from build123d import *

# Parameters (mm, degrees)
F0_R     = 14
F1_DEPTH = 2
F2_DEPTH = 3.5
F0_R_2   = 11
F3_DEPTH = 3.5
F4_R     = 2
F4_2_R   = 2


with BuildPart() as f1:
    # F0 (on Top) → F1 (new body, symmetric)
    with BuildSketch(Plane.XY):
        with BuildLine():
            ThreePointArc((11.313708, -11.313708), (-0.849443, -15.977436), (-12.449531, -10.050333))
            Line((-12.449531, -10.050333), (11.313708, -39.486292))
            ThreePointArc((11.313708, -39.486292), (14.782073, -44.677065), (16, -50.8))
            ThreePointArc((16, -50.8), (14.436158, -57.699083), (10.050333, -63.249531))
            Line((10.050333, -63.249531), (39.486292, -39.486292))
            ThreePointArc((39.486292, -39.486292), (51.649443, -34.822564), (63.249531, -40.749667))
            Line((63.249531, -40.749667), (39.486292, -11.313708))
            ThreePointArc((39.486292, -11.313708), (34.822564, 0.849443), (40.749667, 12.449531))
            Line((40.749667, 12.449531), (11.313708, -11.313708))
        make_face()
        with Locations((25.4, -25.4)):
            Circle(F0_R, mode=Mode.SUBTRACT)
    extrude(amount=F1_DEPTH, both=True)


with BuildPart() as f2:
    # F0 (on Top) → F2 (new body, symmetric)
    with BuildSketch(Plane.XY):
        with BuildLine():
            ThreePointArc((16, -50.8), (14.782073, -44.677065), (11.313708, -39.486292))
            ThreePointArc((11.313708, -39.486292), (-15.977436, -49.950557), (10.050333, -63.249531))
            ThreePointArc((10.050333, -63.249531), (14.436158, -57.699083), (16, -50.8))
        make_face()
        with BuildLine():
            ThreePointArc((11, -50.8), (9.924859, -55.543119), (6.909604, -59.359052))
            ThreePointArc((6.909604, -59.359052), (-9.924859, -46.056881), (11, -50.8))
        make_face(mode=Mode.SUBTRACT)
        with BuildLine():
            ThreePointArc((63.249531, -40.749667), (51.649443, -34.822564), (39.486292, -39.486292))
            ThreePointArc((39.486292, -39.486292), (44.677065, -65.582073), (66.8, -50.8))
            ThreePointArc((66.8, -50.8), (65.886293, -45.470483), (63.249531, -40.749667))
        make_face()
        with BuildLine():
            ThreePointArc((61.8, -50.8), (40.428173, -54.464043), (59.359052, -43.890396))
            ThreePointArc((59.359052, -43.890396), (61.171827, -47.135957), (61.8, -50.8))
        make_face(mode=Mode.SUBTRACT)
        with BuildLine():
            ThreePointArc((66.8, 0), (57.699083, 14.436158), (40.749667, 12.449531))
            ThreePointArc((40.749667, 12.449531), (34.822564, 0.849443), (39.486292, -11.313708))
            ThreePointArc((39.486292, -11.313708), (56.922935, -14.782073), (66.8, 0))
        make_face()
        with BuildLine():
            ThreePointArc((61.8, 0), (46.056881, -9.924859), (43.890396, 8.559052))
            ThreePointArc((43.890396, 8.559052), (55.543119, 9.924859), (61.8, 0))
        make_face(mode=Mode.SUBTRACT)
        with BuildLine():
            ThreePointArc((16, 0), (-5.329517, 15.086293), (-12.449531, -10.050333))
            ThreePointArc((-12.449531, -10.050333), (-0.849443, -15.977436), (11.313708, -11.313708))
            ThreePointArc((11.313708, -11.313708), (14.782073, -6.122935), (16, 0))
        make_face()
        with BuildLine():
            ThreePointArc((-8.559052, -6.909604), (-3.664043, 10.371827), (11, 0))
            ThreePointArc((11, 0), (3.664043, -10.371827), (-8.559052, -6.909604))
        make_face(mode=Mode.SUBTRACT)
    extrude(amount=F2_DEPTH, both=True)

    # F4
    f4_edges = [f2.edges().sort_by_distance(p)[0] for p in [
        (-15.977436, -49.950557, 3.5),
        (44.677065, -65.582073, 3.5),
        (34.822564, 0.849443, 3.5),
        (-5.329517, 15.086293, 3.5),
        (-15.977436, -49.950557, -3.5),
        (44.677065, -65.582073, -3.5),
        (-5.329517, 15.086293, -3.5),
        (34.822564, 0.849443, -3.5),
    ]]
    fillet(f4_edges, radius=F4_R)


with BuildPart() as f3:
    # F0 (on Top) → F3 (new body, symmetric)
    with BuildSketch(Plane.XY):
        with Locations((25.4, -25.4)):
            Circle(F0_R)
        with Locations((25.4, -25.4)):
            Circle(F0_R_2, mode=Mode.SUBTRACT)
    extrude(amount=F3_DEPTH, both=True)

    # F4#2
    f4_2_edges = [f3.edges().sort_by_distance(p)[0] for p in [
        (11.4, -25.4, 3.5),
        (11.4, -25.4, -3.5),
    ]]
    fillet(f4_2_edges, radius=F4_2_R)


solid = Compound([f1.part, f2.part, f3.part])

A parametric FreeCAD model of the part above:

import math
import FreeCAD as App
import Part
import Sketcher
from FreeCAD import Vector


def edges_at(feature, points):
    """Names of the edges that pass closest to the given points."""
    edges = feature.Shape.Edges
    near = lambda p: min(range(len(edges)), key=lambda i: edges[i].distToShape(Part.Vertex(*p))[0])
    return sorted({f"Edge{near(p) + 1}" for p in points})

doc = App.newDocument("Part")
params = doc.addObject("Spreadsheet::Sheet", "Params")
for row, (alias, value) in enumerate([
    ("sketch1_diameter", "28 mm"),
    ("sketch1_radius", "15.999999 mm"),
    ("pad1_length", "4 mm"),
    ("sketch2_radius", "16 mm"),
    ("sketch2_radius2", "11 mm"),
    ("pad2_length", "7 mm"),
    ("fillet_radius", "2 mm"),
    ("sketch3_diameter", "28 mm"),
    ("sketch3_diameter2", "22 mm"),
    ("pad3_length", "7 mm"),
    ("fillet2_radius", "2 mm"),
], start=1):
    params.set(f"A{row}", alias)
    params.set(f"B{row}", "=" + value)
    params.setAlias(f"B{row}", alias)

body = doc.addObject("PartDesign::Body", "Body")

# Sketch on XY plane
sketch1 = body.newObject("Sketcher::SketchObject", "Sketch")
sketch1.AttachmentSupport = (doc.getObject("XY_Plane"), [""])
sketch1.MapMode = "FlatFace"
sketch1.addGeometry([
    Part.ArcOfCircle(Part.Circle(Vector(0, 0, 0), Vector(0, 0, 1), 16), math.radians(-141), math.radians(-45)),  # 0
    Part.LineSegment(Vector(-12, -10, 0), Vector(11, -39, 0)),  # 1
    Part.ArcOfCircle(Part.Circle(Vector(0, -51, 0), Vector(0, 0, 1), 16), math.radians(0), math.radians(45)),  # 2
    Part.ArcOfCircle(Part.Circle(Vector(0, -51, 0), Vector(0, 0, 1), 16), math.radians(-51), math.radians(0)),  # 3
    Part.LineSegment(Vector(10, -63, 0), Vector(39, -39, 0)),  # 4
    Part.ArcOfCircle(Part.Circle(Vector(51, -51, 0), Vector(0, 0, 1), 16), math.radians(39), math.radians(135)),  # 5
    Part.LineSegment(Vector(63, -41, 0), Vector(39, -11, 0)),  # 6
    Part.ArcOfCircle(Part.Circle(Vector(51, 0, 0), Vector(0, 0, 1), 16), math.radians(129), math.radians(225)),  # 7
    Part.LineSegment(Vector(41, 12, 0), Vector(11, -11, 0)),  # 8
    Part.Circle(Vector(25, -25, 0), Vector(0, 0, 1), 14),  # 9
], False)
sketch1.addConstraint([
    Sketcher.Constraint("Tangent", 0, 1, 1, 1),
    Sketcher.Constraint("Coincident", 1, 2, 2, 2),
    Sketcher.Constraint("Tangent", 2, 1, 3, 2),
    Sketcher.Constraint("Tangent", 3, 1, 4, 1),
    Sketcher.Constraint("Coincident", 4, 2, 5, 2),
    Sketcher.Constraint("Tangent", 5, 1, 6, 1),
    Sketcher.Constraint("Coincident", 6, 2, 7, 2),
    Sketcher.Constraint("Tangent", 7, 1, 8, 1),
    Sketcher.Constraint("Coincident", 8, 2, 0, 2),
    Sketcher.Constraint("Coincident", 0, 3, -1, 1),
    Sketcher.Constraint("Equal", 0, 5),
    Sketcher.Constraint("Equal", 5, 7),
    Sketcher.Constraint("PointOnObject", 3, 3, -2),
    Sketcher.Constraint("PointOnObject", 7, 3, -1),
    Sketcher.Constraint("Perpendicular", 1, 4),
    Sketcher.Constraint("Perpendicular", 4, 6),
    Sketcher.Constraint("Perpendicular", 6, 8),
    Sketcher.Constraint("Horizontal", 3, 3, 5, 3),
    Sketcher.Constraint("Horizontal", 5, 3, 2, 1),
    Sketcher.Constraint("Horizontal", 1, 2, 4, 2),
    Sketcher.Constraint("Horizontal", 6, 2, 8, 2),
    Sketcher.Constraint("Vertical", 4, 2, 6, 2),
    Sketcher.Constraint("Vertical", 1, 2, 8, 2),
    Sketcher.Constraint("Equal", 1, 4),
    Sketcher.Constraint("Diameter", 9, 28.0),
    Sketcher.Constraint("Radius", 0, 15.999999),
    Sketcher.Constraint("DistanceY", 3, 3, -1, 1, 50.8),
    Sketcher.Constraint("DistanceX", -1, 1, 9, 3, 25.4),
    Sketcher.Constraint("DistanceY", 9, 3, -1, 1, 25.4),
])
sketch1.setExpression("Constraints[24]", "Params.sketch1_diameter")
sketch1.setExpression("Constraints[25]", "Params.sketch1_radius")
pad1 = body.newObject("PartDesign::Pad", "Pad")
pad1.Profile = sketch1
pad1.setExpression("Length", "Params.pad1_length")
pad1.Midplane = True
body2 = doc.addObject("PartDesign::Body", "Body001")
body2.AllowCompound = True

# Sketch on XY plane
sketch2 = body2.newObject("Sketcher::SketchObject", "Sketch001")
sketch2.AttachmentSupport = (doc.getObject("XY_Plane001"), [""])
sketch2.MapMode = "FlatFace"
sketch2.addGeometry([
    Part.ArcOfCircle(Part.Circle(Vector(0, -51, 0), Vector(0, 0, 1), 16), math.radians(0), math.radians(45)),  # 0
    Part.ArcOfCircle(Part.Circle(Vector(0, -51, 0), Vector(0, 0, 1), 16), math.radians(45), math.radians(309)),  # 1
    Part.ArcOfCircle(Part.Circle(Vector(0, -51, 0), Vector(0, 0, 1), 16), math.radians(-51), math.radians(0)),  # 2
    Part.ArcOfCircle(Part.Circle(Vector(0, -51, 0), Vector(0, 0, 1), 11), math.radians(0), math.radians(309)),  # 3
    Part.ArcOfCircle(Part.Circle(Vector(0, -51, 0), Vector(0, 0, 1), 11), math.radians(-51), math.radians(0)),  # 4
    Part.ArcOfCircle(Part.Circle(Vector(51, -51, 0), Vector(0, 0, 1), 16), math.radians(39), math.radians(135)),  # 5
    Part.ArcOfCircle(Part.Circle(Vector(51, -51, 0), Vector(0, 0, 1), 16), math.radians(135), math.radians(360)),  # 6
    Part.ArcOfCircle(Part.Circle(Vector(51, -51, 0), Vector(0, 0, 1), 16), math.radians(0), math.radians(39)),  # 7
    Part.ArcOfCircle(Part.Circle(Vector(51, -51, 0), Vector(0, 0, 1), 11), math.radians(0), math.radians(39)),  # 8
    Part.ArcOfCircle(Part.Circle(Vector(51, -51, 0), Vector(0, 0, 1), 11), math.radians(39), math.radians(360)),  # 9
    Part.ArcOfCircle(Part.Circle(Vector(51, 0, 0), Vector(0, 0, 1), 16), math.radians(0), math.radians(129)),  # 10
    Part.ArcOfCircle(Part.Circle(Vector(51, 0, 0), Vector(0, 0, 1), 16), math.radians(129), math.radians(225)),  # 11
    Part.ArcOfCircle(Part.Circle(Vector(51, 0, 0), Vector(0, 0, 1), 16), math.radians(-135), math.radians(0)),  # 12
    Part.ArcOfCircle(Part.Circle(Vector(51, 0, 0), Vector(0, 0, 1), 11), math.radians(0), math.radians(129)),  # 13
    Part.ArcOfCircle(Part.Circle(Vector(51, 0, 0), Vector(0, 0, 1), 11), math.radians(129), math.radians(360)),  # 14
    Part.ArcOfCircle(Part.Circle(Vector(0, 0, 0), Vector(0, 0, 1), 16), math.radians(0), math.radians(219)),  # 15
    Part.ArcOfCircle(Part.Circle(Vector(0, 0, 0), Vector(0, 0, 1), 16), math.radians(-141), math.radians(-45)),  # 16
    Part.ArcOfCircle(Part.Circle(Vector(0, 0, 0), Vector(0, 0, 1), 16), math.radians(-45), math.radians(0)),  # 17
    Part.ArcOfCircle(Part.Circle(Vector(0, 0, 0), Vector(0, 0, 1), 11), math.radians(-141), math.radians(0)),  # 18
    Part.ArcOfCircle(Part.Circle(Vector(0, 0, 0), Vector(0, 0, 1), 11), math.radians(0), math.radians(219)),  # 19
], False)
sketch2.addConstraint([
    Sketcher.Constraint("Tangent", 0, 2, 1, 1),
    Sketcher.Constraint("Tangent", 1, 2, 2, 1),
    Sketcher.Constraint("Tangent", 2, 2, 0, 1),
    Sketcher.Constraint("Tangent", 3, 1, 4, 2),
    Sketcher.Constraint("Coincident", 4, 1, 3, 2),
    Sketcher.Constraint("Tangent", 5, 2, 6, 1),
    Sketcher.Constraint("Tangent", 6, 2, 7, 1),
    Sketcher.Constraint("Tangent", 7, 2, 5, 1),
    Sketcher.Constraint("Tangent", 8, 1, 9, 2),
    Sketcher.Constraint("Coincident", 9, 1, 8, 2),
    Sketcher.Constraint("Tangent", 10, 2, 11, 1),
    Sketcher.Constraint("Tangent", 11, 2, 12, 1),
    Sketcher.Constraint("Tangent", 12, 2, 10, 1),
    Sketcher.Constraint("Tangent", 13, 1, 14, 2),
    Sketcher.Constraint("Coincident", 14, 1, 13, 2),
    Sketcher.Constraint("Tangent", 15, 2, 16, 1),
    Sketcher.Constraint("Tangent", 16, 2, 17, 1),
    Sketcher.Constraint("Tangent", 17, 2, 15, 1),
    Sketcher.Constraint("Tangent", 18, 1, 19, 2),
    Sketcher.Constraint("Coincident", 19, 1, 18, 2),
    Sketcher.Constraint("Coincident", 15, 3, -1, 1),
    Sketcher.Constraint("Coincident", 18, 3, -1, 1),
    Sketcher.Constraint("Coincident", 3, 3, 1, 3),
    Sketcher.Constraint("Coincident", 8, 3, 5, 3),
    Sketcher.Constraint("Coincident", 13, 3, 10, 3),
    Sketcher.Constraint("Equal", 1, 5),
    Sketcher.Constraint("Equal", 3, 9),
    Sketcher.Constraint("Equal", 6, 10),
    Sketcher.Constraint("Equal", 9, 13),
    Sketcher.Constraint("Equal", 12, 15),
    Sketcher.Constraint("Equal", 14, 18),
    Sketcher.Constraint("PointOnObject", 1, 3, -2),
    Sketcher.Constraint("PointOnObject", 10, 3, -1),
    Sketcher.Constraint("PointOnObject", 12, 2, -1),
    Sketcher.Constraint("PointOnObject", 13, 1, -1),
    Sketcher.Constraint("PointOnObject", 17, 2, -1),
    Sketcher.Constraint("PointOnObject", 19, 1, -1),
    Sketcher.Constraint("Horizontal", 3, 3, 5, 3),
    Sketcher.Constraint("Horizontal", 9, 3, 2, 2),
    Sketcher.Constraint("Horizontal", 2, 2, 3, 1),
    Sketcher.Constraint("Horizontal", 0, 2, 5, 2),
    Sketcher.Constraint("Horizontal", 3, 1, 6, 2),
    Sketcher.Constraint("Horizontal", 6, 2, 8, 1),
    Sketcher.Constraint("Horizontal", 11, 2, 16, 2),
    Sketcher.Constraint("Vertical", 9, 3, 10, 3),
    Sketcher.Constraint("Vertical", 5, 2, 11, 2),
    Sketcher.Constraint("Radius", 1, 16.0),
    Sketcher.Constraint("Radius", 3, 11.0),
    Sketcher.Constraint("DistanceY", 1, 3, -1, 1, 50.800001),
    Sketcher.Constraint("DistanceX", -1, 1, 5, 3, 50.800001),
    Sketcher.Constraint("DistanceX", 4, 3, 4, 1, 6.909602),
    Sketcher.Constraint("DistanceX", -1, 1, 0, 2, 11.313708),
    Sketcher.Constraint("DistanceY", 1, 2, -1, 1, 63.249531),
    Sketcher.Constraint("DistanceX", -1, 1, 7, 2, 63.249531),
    Sketcher.Constraint("DistanceY", -1, 1, 10, 2, 12.449531),
    Sketcher.Constraint("DistanceY", -1, 1, 14, 1, 8.559052),
    Sketcher.Constraint("DistanceX", 15, 2, -1, 1, 12.449531),
    Sketcher.Constraint("DistanceX", 9, 1, 7, 2, 3.890479),
    Sketcher.Constraint("DistanceX", 15, 2, 18, 1, 3.890479),
])
sketch2.setExpression("Constraints[46]", "Params.sketch2_radius")
sketch2.setExpression("Constraints[47]", "Params.sketch2_radius2")
pad2 = body2.newObject("PartDesign::Pad", "Pad001")
pad2.Profile = sketch2
pad2.setExpression("Length", "Params.pad2_length")
pad2.Midplane = True
doc.recompute()

fillet = body2.newObject("PartDesign::Fillet", "Fillet")
fillet.Base = (pad2, edges_at(pad2, [
    (-15.977, -49.951, 3.5),
    (44.677, -65.582, 3.5),
    (34.823, 0.849, 3.5),
    (-5.33, 15.086, 3.5),
    (-15.977, -49.951, -3.5),
    (44.677, -65.582, -3.5),
    (-5.33, 15.086, -3.5),
    (34.823, 0.849, -3.5),
]))
fillet.setExpression("Radius", "Params.fillet_radius")
body3 = doc.addObject("PartDesign::Body", "Body002")

# Sketch on XY plane
sketch3 = body3.newObject("Sketcher::SketchObject", "Sketch002")
sketch3.AttachmentSupport = (doc.getObject("XY_Plane002"), [""])
sketch3.MapMode = "FlatFace"
sketch3.addGeometry([
    Part.Circle(Vector(25, -25, 0), Vector(0, 0, 1), 14),
    Part.Circle(Vector(25, -25, 0), Vector(0, 0, 1), 11),
], False)
sketch3.addConstraint([
    Sketcher.Constraint("Coincident", 1, 3, 0, 3),
    Sketcher.Constraint("Diameter", 0, 28.0),
    Sketcher.Constraint("Diameter", 1, 22.0),
    Sketcher.Constraint("DistanceX", -1, 1, 0, 3, 25.4),
    Sketcher.Constraint("DistanceY", 0, 3, -1, 1, 25.4),
])
sketch3.setExpression("Constraints[1]", "Params.sketch3_diameter")
sketch3.setExpression("Constraints[2]", "Params.sketch3_diameter2")
pad3 = body3.newObject("PartDesign::Pad", "Pad002")
pad3.Profile = sketch3
pad3.setExpression("Length", "Params.pad3_length")
pad3.Midplane = True
doc.recompute()

fillet2 = body3.newObject("PartDesign::Fillet", "Fillet001")
fillet2.Base = (pad3, edges_at(pad3, [(11.4, -25.4, 3.5), (11.4, -25.4, -3.5)]))
fillet2.setExpression("Radius", "Params.fillet2_radius")

doc.recompute()
